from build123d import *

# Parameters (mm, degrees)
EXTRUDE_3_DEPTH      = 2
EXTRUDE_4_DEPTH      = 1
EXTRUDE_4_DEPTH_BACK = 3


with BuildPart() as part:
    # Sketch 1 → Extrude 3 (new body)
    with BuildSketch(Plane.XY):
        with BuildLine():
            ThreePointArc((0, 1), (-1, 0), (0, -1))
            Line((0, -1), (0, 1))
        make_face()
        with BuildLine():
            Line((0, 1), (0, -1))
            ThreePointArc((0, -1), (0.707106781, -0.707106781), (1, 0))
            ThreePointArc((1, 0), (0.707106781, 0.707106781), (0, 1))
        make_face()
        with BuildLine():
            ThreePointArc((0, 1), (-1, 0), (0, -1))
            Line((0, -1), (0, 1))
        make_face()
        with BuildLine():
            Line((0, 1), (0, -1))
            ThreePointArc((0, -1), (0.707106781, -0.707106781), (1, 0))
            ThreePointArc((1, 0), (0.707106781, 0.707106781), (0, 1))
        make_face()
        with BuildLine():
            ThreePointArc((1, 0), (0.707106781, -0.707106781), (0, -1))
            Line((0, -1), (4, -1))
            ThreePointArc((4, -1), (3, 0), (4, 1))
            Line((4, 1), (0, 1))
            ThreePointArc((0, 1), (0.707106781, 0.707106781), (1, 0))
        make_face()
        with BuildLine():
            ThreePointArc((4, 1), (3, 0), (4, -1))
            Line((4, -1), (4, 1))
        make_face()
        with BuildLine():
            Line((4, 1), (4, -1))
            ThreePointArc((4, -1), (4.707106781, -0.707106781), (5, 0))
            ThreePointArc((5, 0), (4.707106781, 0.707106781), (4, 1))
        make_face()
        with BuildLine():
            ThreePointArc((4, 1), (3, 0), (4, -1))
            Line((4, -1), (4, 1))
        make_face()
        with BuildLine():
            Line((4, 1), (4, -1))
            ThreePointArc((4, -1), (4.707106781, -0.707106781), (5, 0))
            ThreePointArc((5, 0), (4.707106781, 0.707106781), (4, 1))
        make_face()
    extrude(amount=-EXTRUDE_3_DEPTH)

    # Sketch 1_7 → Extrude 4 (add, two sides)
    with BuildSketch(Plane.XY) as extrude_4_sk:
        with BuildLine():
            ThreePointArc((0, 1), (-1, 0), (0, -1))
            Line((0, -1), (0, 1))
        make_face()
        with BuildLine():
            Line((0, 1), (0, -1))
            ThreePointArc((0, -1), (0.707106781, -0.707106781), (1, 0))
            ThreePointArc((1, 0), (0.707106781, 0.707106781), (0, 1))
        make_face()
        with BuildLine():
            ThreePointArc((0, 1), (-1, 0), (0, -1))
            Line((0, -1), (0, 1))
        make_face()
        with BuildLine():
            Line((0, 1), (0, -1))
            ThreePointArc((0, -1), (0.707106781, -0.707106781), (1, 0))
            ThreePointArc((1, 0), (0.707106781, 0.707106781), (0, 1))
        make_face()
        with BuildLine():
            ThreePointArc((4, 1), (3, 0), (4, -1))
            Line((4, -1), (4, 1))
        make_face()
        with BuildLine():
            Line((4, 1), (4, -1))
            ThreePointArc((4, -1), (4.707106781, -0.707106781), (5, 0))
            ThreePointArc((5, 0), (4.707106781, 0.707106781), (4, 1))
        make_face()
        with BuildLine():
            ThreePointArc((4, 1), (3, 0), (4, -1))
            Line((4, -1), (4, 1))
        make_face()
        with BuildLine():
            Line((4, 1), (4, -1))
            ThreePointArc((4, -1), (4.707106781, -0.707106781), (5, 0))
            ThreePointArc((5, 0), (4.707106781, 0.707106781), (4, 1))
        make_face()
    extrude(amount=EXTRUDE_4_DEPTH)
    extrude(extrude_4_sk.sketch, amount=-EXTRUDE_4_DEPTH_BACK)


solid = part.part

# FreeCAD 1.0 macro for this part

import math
import FreeCAD as App
import Part
import Sketcher
Q = App.Units.Quantity

doc = App.newDocument("Part")
params = doc.addObject("Spreadsheet::Sheet", "Params")
for row, (alias, value) in enumerate([
    ("sketch1_radius", "1 mm"),
    ("sketch1_width", "4 mm"),
    ("pad1_length", "2 mm"),
    ("sketch2_radius", "1 mm"),
    ("pad2_length", "1 mm"),
    ("pad2_length2", "3 mm"),
], start=1):
    params.set(f"A{row}", alias)
    params.set(f"B{row}", "=" + value)
    params.setAlias(f"B{row}", alias)

body = doc.addObject("PartDesign::Body", "Body")

sketch1 = body.newObject("Sketcher::SketchObject", "Sketch")
sketch1.AttachmentSupport = (doc.getObject("XY_Plane"), [""])
sketch1.MapMode = "FlatFace"
sketch1.addGeometry(Part.LineSegment(App.Vector(0, -1, 0), App.Vector(4, -1, 0)), False)
sketch1.addGeometry(Part.ArcOfCircle(Part.Circle(App.Vector(4, 0, 0), App.Vector(0, 0, 1), 1), math.radians(-90), math.radians(0)), False)
sketch1.addGeometry(Part.ArcOfCircle(Part.Circle(App.Vector(4, 0, 0), App.Vector(0, 0, 1), 1), math.radians(0), math.radians(90)), False)
sketch1.addGeometry(Part.LineSegment(App.Vector(4, 1, 0), App.Vector(0, 1, 0)), False)
sketch1.addGeometry(Part.ArcOfCircle(Part.Circle(App.Vector(0, 0, 0), App.Vector(0, 0, 1), 1), math.radians(90), math.radians(270)), False)
sketch1.addConstraint(Sketcher.Constraint("Tangent", 0, 2, 1, 1))
sketch1.addConstraint(Sketcher.Constraint("Tangent", 1, 2, 2, 1))
sketch1.addConstraint(Sketcher.Constraint("Tangent", 2, 2, 3, 1))
sketch1.addConstraint(Sketcher.Constraint("Tangent", 3, 2, 4, 1))
sketch1.addConstraint(Sketcher.Constraint("Tangent", 4, 2, 0, 1))
sketch1.addConstraint(Sketcher.Constraint("Horizontal", 0))
sketch1.addConstraint(Sketcher.Constraint("Horizontal", 3))
sketch1.addConstraint(Sketcher.Constraint("Coincident", 4, 3, -1, 1))
sketch1.addConstraint(Sketcher.Constraint("Equal", 1, 2))
sketch1.addConstraint(Sketcher.Constraint("PointOnObject", 1, 2, -1))
sketch1.addConstraint(Sketcher.Constraint("Radius", 1, Q("1 mm")))
sketch1.addConstraint(Sketcher.Constraint("DistanceX", 0, 1, 0, 2, Q("4 mm")))
sketch1.setExpression("Constraints[10]", "Params.sketch1_radius")
sketch1.setExpression("Constraints[11]", "Params.sketch1_width")
pad1 = body.newObject("PartDesign::Pad", "Pad")
pad1.Profile = sketch1
pad1.setExpression("Length", "Params.pad1_length")
pad1.Reversed = True

sketch2 = body.newObject("Sketcher::SketchObject", "Sketch001")
sketch2.AttachmentSupport = (doc.getObject("XY_Plane"), [""])
sketch2.MapMode = "FlatFace"
sketch2.addGeometry(Part.ArcOfCircle(Part.Circle(App.Vector(0, 0, 0), App.Vector(0, 0, 1), 1), math.radians(90), math.radians(270)), False)
sketch2.addGeometry(Part.ArcOfCircle(Part.Circle(App.Vector(0, 0, 0), App.Vector(0, 0, 1), 1), math.radians(-90), math.radians(0)), False)
sketch2.addGeometry(Part.ArcOfCircle(Part.Circle(App.Vector(0, 0, 0), App.Vector(0, 0, 1), 1), math.radians(0), math.radians(90)), False)
sketch2.addGeometry(Part.ArcOfCircle(Part.Circle(App.Vector(4, 0, 0), App.Vector(0, 0, 1), 1), math.radians(90), math.radians(270)), False)
sketch2.addGeometry(Part.ArcOfCircle(Part.Circle(App.Vector(4, 0, 0), App.Vector(0, 0, 1), 1), math.radians(-90), math.radians(0)), False)
sketch2.addGeometry(Part.ArcOfCircle(Part.Circle(App.Vector(4, 0, 0), App.Vector(0, 0, 1), 1), math.radians(0), math.radians(90)), False)
sketch2.addConstraint(Sketcher.Constraint("Tangent", 0, 2, 1, 1))
sketch2.addConstraint(Sketcher.Constraint("Tangent", 1, 2, 2, 1))
sketch2.addConstraint(Sketcher.Constraint("Tangent", 2, 2, 0, 1))
sketch2.addConstraint(Sketcher.Constraint("Tangent", 3, 2, 4, 1))
sketch2.addConstraint(Sketcher.Constraint("Tangent", 4, 2, 5, 1))
sketch2.addConstraint(Sketcher.Constraint("Tangent", 5, 2, 3, 1))
sketch2.addConstraint(Sketcher.Constraint("Coincident", 0, 3, -1, 1))
sketch2.addConstraint(Sketcher.Constraint("Equal", 2, 3))
sketch2.addConstraint(Sketcher.Constraint("Symmetric", 3, 2, 5, 2, -1))
sketch2.addConstraint(Sketcher.Constraint("PointOnObject", 0, 2, -2))
sketch2.addConstraint(Sketcher.Constraint("PointOnObject", 1, 2, -1))
sketch2.addConstraint(Sketcher.Constraint("PointOnObject", 2, 2, -2))
sketch2.addConstraint(Sketcher.Constraint("PointOnObject", 4, 2, -1))
sketch2.addConstraint(Sketcher.Constraint("Vertical", 5, 3, 3, 2))
sketch2.addConstraint(Sketcher.Constraint("Radius", 0, Q("1 mm")))
sketch2.addConstraint(Sketcher.Constraint("DistanceX", -1, 1, 3, 3, Q("4 mm")))
sketch2.setExpression("Constraints[14]", "Params.sketch2_radius")
pad2 = body.newObject("PartDesign::Pad", "Pad001")
pad2.Profile = sketch2
pad2.Type = "TwoLengths"
pad2.setExpression("Length", "Params.pad2_length")
pad2.setExpression("Length2", "Params.pad2_length2")

doc.recompute()
